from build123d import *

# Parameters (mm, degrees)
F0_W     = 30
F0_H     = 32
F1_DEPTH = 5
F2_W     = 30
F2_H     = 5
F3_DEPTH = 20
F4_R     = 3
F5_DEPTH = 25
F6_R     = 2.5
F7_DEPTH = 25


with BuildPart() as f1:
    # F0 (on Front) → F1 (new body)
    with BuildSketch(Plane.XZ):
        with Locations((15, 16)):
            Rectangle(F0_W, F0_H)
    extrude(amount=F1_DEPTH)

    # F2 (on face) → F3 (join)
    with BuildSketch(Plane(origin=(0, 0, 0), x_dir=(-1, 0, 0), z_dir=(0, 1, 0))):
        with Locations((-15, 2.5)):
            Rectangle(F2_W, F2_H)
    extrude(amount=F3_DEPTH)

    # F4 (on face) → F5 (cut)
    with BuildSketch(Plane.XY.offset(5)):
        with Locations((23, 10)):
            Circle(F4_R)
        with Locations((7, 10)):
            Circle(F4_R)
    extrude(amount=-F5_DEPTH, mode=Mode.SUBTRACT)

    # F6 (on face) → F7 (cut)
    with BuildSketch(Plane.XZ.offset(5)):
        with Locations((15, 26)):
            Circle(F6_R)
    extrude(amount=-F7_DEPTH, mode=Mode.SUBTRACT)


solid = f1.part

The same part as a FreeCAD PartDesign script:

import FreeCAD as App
import Part
import Sketcher
Q = App.Units.Quantity


def add_polygon(sketch, points):
    """Adds a closed chain of lines whose ends are joined by coincident constraints."""
    first, n = sketch.GeometryCount, len(points)
    for a, b in zip(points, points[1:] + points[:1]):
        sketch.addGeometry(Part.LineSegment(App.Vector(*a, 0), App.Vector(*b, 0)), False)
    for i in range(n):
        sketch.addConstraint(Sketcher.Constraint("Coincident", first + i, 2, first + (i + 1) % n, 1))

doc = App.newDocument("Part")
body = doc.addObject("PartDesign::Body", "Body")

sketch1 = doc.addObject("Sketcher::SketchObject", "Sketch")
body.addObject(sketch1)
sketch1.AttachmentSupport = (doc.XZ_Plane, [""])
sketch1.MapMode = "FlatFace"
add_polygon(sketch1, [(0, 32), (0, 0), (30, 0), (30, 32)])
sketch1.addConstraint(Sketcher.Constraint("Vertical", 0))
sketch1.addConstraint(Sketcher.Constraint("Horizontal", 1))
sketch1.addConstraint(Sketcher.Constraint("Vertical", 2))
sketch1.addConstraint(Sketcher.Constraint("Horizontal", 3))
sketch1.addConstraint(Sketcher.Constraint("Coincident", 0, 2, -1, 1))
sketch1.addConstraint(Sketcher.Constraint("DistanceX", 1, 1, 1, 2, Q("30 mm")))
sketch1.addConstraint(Sketcher.Constraint("DistanceY", 0, 2, 0, 1, Q("32 mm")))
pad1 = doc.addObject("PartDesign::Pad", "Pad")
body.addObject(pad1)
pad1.Profile = sketch1
pad1.Length = 5

sketch2 = doc.addObject("Sketcher::SketchObject", "Sketch001")
body.addObject(sketch2)
sketch2.AttachmentSupport = (doc.XZ_Plane, [""])
sketch2.MapMode = "FlatFace"
add_polygon(sketch2, [(30, 5), (30, 0), (0, 0), (0, 5)])
sketch2.addConstraint(Sketcher.Constraint("Vertical", 0))
sketch2.addConstraint(Sketcher.Constraint("Horizontal", 1))
sketch2.addConstraint(Sketcher.Constraint("Vertical", 2))
sketch2.addConstraint(Sketcher.Constraint("Horizontal", 3))
sketch2.addConstraint(Sketcher.Constraint("Coincident", 1, 2, -1, 1))
sketch2.addConstraint(Sketcher.Constraint("DistanceX", 1, 2, 1, 1, Q("30 mm")))
sketch2.addConstraint(Sketcher.Constraint("DistanceY", 0, 2, 0, 1, Q("5 mm")))
pad2 = doc.addObject("PartDesign::Pad", "Pad001")
body.addObject(pad2)
pad2.Profile = sketch2
pad2.Length = 20
pad2.Reversed = True

sketch3 = doc.addObject("Sketcher::SketchObject", "Sketch002")
body.addObject(sketch3)
sketch3.AttachmentSupport = (doc.XY_Plane, [""])
sketch3.MapMode = "FlatFace"
sketch3.AttachmentOffset = App.Placement(App.Vector(0, 0, 5), App.Rotation())
sketch3.addGeometry(Part.Circle(App.Vector(23, 10, 0), App.Vector(0, 0, 1), 3), False)
sketch3.addGeometry(Part.Circle(App.Vector(7, 10, 0), App.Vector(0, 0, 1), 3), False)
sketch3.addConstraint(Sketcher.Constraint("Equal", 0, 1))
sketch3.addConstraint(Sketcher.Constraint("Horizontal", 0, 3, 1, 3))
sketch3.addConstraint(Sketcher.Constraint("Diameter", 0, Q("6 mm")))
sketch3.addConstraint(Sketcher.Constraint("DistanceX", -1, 1, 0, 3, Q("23 mm")))
sketch3.addConstraint(Sketcher.Constraint("DistanceY", -1, 1, 0, 3, Q("10 mm")))
sketch3.addConstraint(Sketcher.Constraint("DistanceX", -1, 1, 1, 3, Q("7 mm")))
pocket1 = doc.addObject("PartDesign::Pocket", "Pocket")
body.addObject(pocket1)
pocket1.Profile = sketch3
pocket1.Length = 25

sketch4 = doc.addObject("Sketcher::SketchObject", "Sketch003")
body.addObject(sketch4)
sketch4.AttachmentSupport = (doc.XZ_Plane, [""])
sketch4.MapMode = "FlatFace"
sketch4.AttachmentOffset = App.Placement(App.Vector(0, 0, 5), App.Rotation())
sketch4.addGeometry(Part.Circle(App.Vector(15, 26, 0), App.Vector(0, 0, 1), 2.5), False)
sketch4.addConstraint(Sketcher.Constraint("Diameter", 0, Q("5 mm")))
sketch4.addConstraint(Sketcher.Constraint("DistanceX", -1, 1, 0, 3, Q("15 mm")))
sketch4.addConstraint(Sketcher.Constraint("DistanceY", -1, 1, 0, 3, Q("26 mm")))
pocket2 = doc.addObject("PartDesign::Pocket", "Pocket001")
body.addObject(pocket2)
pocket2.Profile = sketch4
pocket2.Length = 25

doc.recompute()
